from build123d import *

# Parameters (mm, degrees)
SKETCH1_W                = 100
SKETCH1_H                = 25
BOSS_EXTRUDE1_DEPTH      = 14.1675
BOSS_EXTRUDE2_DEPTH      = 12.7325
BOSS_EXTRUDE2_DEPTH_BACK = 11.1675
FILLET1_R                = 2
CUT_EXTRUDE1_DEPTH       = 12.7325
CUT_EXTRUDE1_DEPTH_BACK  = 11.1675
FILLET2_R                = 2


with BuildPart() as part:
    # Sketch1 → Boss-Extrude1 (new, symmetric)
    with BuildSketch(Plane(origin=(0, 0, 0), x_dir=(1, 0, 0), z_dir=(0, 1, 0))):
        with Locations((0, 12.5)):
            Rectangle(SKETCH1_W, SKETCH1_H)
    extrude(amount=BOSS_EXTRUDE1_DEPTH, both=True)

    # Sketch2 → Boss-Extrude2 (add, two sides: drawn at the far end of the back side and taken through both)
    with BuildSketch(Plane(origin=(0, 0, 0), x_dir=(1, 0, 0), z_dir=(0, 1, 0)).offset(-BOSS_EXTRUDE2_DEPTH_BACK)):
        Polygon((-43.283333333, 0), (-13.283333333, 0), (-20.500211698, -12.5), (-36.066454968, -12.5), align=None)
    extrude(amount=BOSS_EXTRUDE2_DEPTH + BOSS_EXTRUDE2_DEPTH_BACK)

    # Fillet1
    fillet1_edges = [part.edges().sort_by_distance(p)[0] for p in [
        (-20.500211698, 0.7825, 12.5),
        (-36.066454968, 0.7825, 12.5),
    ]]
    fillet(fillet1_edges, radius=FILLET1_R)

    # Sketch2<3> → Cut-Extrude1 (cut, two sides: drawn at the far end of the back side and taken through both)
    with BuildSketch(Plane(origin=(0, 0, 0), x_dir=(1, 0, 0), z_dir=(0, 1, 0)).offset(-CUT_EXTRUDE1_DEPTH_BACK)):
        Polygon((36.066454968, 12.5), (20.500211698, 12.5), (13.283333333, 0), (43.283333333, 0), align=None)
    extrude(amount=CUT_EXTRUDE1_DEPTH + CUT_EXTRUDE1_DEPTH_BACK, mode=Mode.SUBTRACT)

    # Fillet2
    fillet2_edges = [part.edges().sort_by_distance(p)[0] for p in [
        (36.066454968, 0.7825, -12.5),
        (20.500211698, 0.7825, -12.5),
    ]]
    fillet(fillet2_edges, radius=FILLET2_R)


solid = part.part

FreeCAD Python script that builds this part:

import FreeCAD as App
import Part
import Sketcher
Q = App.Units.Quantity


def edges_at(feature, points):
    """Names of the edges that pass closest to the given points."""
    edges = feature.Shape.Edges
    near = lambda p: min(range(len(edges)), key=lambda i: edges[i].distToShape(Part.Vertex(*p))[0])
    return sorted({f"Edge{near(p) + 1}" for p in points})

doc = App.newDocument("Part")
params = doc.addObject("Spreadsheet::Sheet", "Params")
for row, (alias, value) in enumerate([
    ("sketch1_width", "100 mm"),
    ("sketch1_height", "25 mm"),
    ("pad1_length", "28.335 mm"),
    ("sketch2_width", "30 mm"),
    ("pad2_length", "12.7325 mm"),
    ("pad2_length2", "11.1675 mm"),
    ("fillet_radius", "2 mm"),
    ("sketch3_width", "30 mm"),
    ("pocket1_length", "12.7325 mm"),
    ("pocket1_length2", "11.1675 mm"),
    ("fillet2_radius", "2 mm"),
], start=1):
    params.set(f"A{row}", alias)
    params.set(f"B{row}", "=" + value)
    params.setAlias(f"B{row}", alias)

body = doc.addObject("PartDesign::Body", "Body")

sketch1 = doc.addObject("Sketcher::SketchObject", "Sketch")
body.addObject(sketch1)
sketch1.AttachmentSupport = (doc.XZ_Plane, [""])
sketch1.MapMode = "FlatFace"
sketch1.addGeometry(Part.LineSegment(App.Vector(-50, -25, 0), App.Vector(-50, 0, 0)), False)
sketch1.addGeometry(Part.LineSegment(App.Vector(-50, 0, 0), App.Vector(50, 0, 0)), False)
sketch1.addGeometry(Part.LineSegment(App.Vector(50, 0, 0), App.Vector(50, -25, 0)), False)
sketch1.addGeometry(Part.LineSegment(App.Vector(50, -25, 0), App.Vector(-50, -25, 0)), False)
sketch1.addConstraint(Sketcher.Constraint("Coincident", 0, 2, 1, 1))
sketch1.addConstraint(Sketcher.Constraint("Coincident", 1, 2, 2, 1))
sketch1.addConstraint(Sketcher.Constraint("Coincident", 2, 2, 3, 1))
sketch1.addConstraint(Sketcher.Constraint("Coincident", 3, 2, 0, 1))
sketch1.addConstraint(Sketcher.Constraint("Vertical", 0))
sketch1.addConstraint(Sketcher.Constraint("Horizontal", 1))
sketch1.addConstraint(Sketcher.Constraint("Vertical", 2))
sketch1.addConstraint(Sketcher.Constraint("Horizontal", 3))
sketch1.addConstraint(Sketcher.Constraint("Symmetric", 0, 2, 1, 2, -1, 1))
sketch1.addConstraint(Sketcher.Constraint("DistanceX", 1, 1, 1, 2, Q("100 mm")))
sketch1.addConstraint(Sketcher.Constraint("DistanceY", 0, 1, 0, 2, Q("25 mm")))
sketch1.setExpression("Constraints[9]", "Params.sketch1_width")
sketch1.setExpression("Constraints[10]", "Params.sketch1_height")
pad1 = doc.addObject("PartDesign::Pad", "Pad")
body.addObject(pad1)
pad1.Profile = sketch1
pad1.setExpression("Length", "Params.pad1_length")
pad1.Midplane = True

sketch2 = doc.addObject("Sketcher::SketchObject", "Sketch001")
body.addObject(sketch2)
sketch2.AttachmentSupport = (doc.XZ_Plane, [""])
sketch2.MapMode = "FlatFace"
sketch2.addGeometry(Part.LineSegment(App.Vector(-13, 0, 0), App.Vector(-43, 0, 0)), False)
sketch2.addGeometry(Part.LineSegment(App.Vector(-43, 0, 0), App.Vector(-36, 12, 0)), False)
sketch2.addGeometry(Part.LineSegment(App.Vector(-36, 12, 0), App.Vector(-21, 12, 0)), False)
sketch2.addGeometry(Part.LineSegment(App.Vector(-21, 12, 0), App.Vector(-13, 0, 0)), False)
sketch2.addConstraint(Sketcher.Constraint("Coincident", 0, 2, 1, 1))
sketch2.addConstraint(Sketcher.Constraint("Coincident", 1, 2, 2, 1))
sketch2.addConstraint(Sketcher.Constraint("Coincident", 2, 2, 3, 1))
sketch2.addConstraint(Sketcher.Constraint("Coincident", 3, 2, 0, 1))
sketch2.addConstraint(Sketcher.Constraint("Horizontal", 0))
sketch2.addConstraint(Sketcher.Constraint("Horizontal", 2))
sketch2.addConstraint(Sketcher.Constraint("PointOnObject", 0, 2, -1))
sketch2.addConstraint(Sketcher.Constraint("Equal", 1, 3))
sketch2.addConstraint(Sketcher.Constraint("DistanceX", 0, 2, 0, 1, Q("30 mm")))
sketch2.addConstraint(Sketcher.Constraint("Angle", 1, Q("60 deg")))
sketch2.addConstraint(Sketcher.Constraint("DistanceY", -1, 1, 1, 2, Q("12.5 mm")))
sketch2.addConstraint(Sketcher.Constraint("DistanceX", 2, 2, -1, 1, Q("20.500212 mm")))
sketch2.setExpression("Constraints[8]", "Params.sketch2_width")
pad2 = doc.addObject("PartDesign::Pad", "Pad001")
body.addObject(pad2)
pad2.Profile = sketch2
pad2.Type = "TwoLengths"
pad2.setExpression("Length", "Params.pad2_length")
pad2.setExpression("Length2", "Params.pad2_length2")
pad2.Reversed = True
doc.recompute()

fillet = doc.addObject("PartDesign::Fillet", "Fillet")
body.addObject(fillet)
fillet.Base = (pad2, edges_at(pad2, [(-20.5, 0.782, 12.5), (-36.066, 0.782, 12.5)]))
fillet.setExpression("Radius", "Params.fillet_radius")

sketch3 = doc.addObject("Sketcher::SketchObject", "Sketch002")
body.addObject(sketch3)
sketch3.AttachmentSupport = (doc.XZ_Plane, [""])
sketch3.MapMode = "FlatFace"
sketch3.addGeometry(Part.LineSegment(App.Vector(36, -12, 0), App.Vector(21, -12, 0)), False)
sketch3.addGeometry(Part.LineSegment(App.Vector(21, -12, 0), App.Vector(13, 0, 0)), False)
sketch3.addGeometry(Part.LineSegment(App.Vector(13, 0, 0), App.Vector(43, 0, 0)), False)
sketch3.addGeometry(Part.LineSegment(App.Vector(43, 0, 0), App.Vector(36, -12, 0)), False)
sketch3.addConstraint(Sketcher.Constraint("Coincident", 0, 2, 1, 1))
sketch3.addConstraint(Sketcher.Constraint("Coincident", 1, 2, 2, 1))
sketch3.addConstraint(Sketcher.Constraint("Coincident", 2, 2, 3, 1))
sketch3.addConstraint(Sketcher.Constraint("Coincident", 3, 2, 0, 1))
sketch3.addConstraint(Sketcher.Constraint("Horizontal", 0))
sketch3.addConstraint(Sketcher.Constraint("Horizontal", 2))
sketch3.addConstraint(Sketcher.Constraint("PointOnObject", 1, 2, -1))
sketch3.addConstraint(Sketcher.Constraint("Equal", 1, 3))
sketch3.addConstraint(Sketcher.Constraint("DistanceX", 2, 1, 2, 2, Q("30 mm")))
sketch3.addConstraint(Sketcher.Constraint("Angle", 1, Q("120 deg")))
sketch3.addConstraint(Sketcher.Constraint("DistanceY", 0, 2, -1, 1, Q("12.5 mm")))
sketch3.addConstraint(Sketcher.Constraint("DistanceX", -1, 1, 0, 2, Q("20.500212 mm")))
sketch3.setExpression("Constraints[8]", "Params.sketch3_width")
pocket1 = doc.addObject("PartDesign::Pocket", "Pocket")
body.addObject(pocket1)
pocket1.Profile = sketch3
pocket1.Type = "TwoLengths"
pocket1.setExpression("Length", "Params.pocket1_length")
pocket1.setExpression("Length2", "Params.pocket1_length2")
doc.recompute()

fillet2 = doc.addObject("PartDesign::Fillet", "Fillet001")
body.addObject(fillet2)
fillet2.Base = (pocket1, edges_at(pocket1, [(36.066, 0.782, -12.5), (20.5, 0.782, -12.5)]))
fillet2.setExpression("Radius", "Params.fillet2_radius")

doc.recompute()
